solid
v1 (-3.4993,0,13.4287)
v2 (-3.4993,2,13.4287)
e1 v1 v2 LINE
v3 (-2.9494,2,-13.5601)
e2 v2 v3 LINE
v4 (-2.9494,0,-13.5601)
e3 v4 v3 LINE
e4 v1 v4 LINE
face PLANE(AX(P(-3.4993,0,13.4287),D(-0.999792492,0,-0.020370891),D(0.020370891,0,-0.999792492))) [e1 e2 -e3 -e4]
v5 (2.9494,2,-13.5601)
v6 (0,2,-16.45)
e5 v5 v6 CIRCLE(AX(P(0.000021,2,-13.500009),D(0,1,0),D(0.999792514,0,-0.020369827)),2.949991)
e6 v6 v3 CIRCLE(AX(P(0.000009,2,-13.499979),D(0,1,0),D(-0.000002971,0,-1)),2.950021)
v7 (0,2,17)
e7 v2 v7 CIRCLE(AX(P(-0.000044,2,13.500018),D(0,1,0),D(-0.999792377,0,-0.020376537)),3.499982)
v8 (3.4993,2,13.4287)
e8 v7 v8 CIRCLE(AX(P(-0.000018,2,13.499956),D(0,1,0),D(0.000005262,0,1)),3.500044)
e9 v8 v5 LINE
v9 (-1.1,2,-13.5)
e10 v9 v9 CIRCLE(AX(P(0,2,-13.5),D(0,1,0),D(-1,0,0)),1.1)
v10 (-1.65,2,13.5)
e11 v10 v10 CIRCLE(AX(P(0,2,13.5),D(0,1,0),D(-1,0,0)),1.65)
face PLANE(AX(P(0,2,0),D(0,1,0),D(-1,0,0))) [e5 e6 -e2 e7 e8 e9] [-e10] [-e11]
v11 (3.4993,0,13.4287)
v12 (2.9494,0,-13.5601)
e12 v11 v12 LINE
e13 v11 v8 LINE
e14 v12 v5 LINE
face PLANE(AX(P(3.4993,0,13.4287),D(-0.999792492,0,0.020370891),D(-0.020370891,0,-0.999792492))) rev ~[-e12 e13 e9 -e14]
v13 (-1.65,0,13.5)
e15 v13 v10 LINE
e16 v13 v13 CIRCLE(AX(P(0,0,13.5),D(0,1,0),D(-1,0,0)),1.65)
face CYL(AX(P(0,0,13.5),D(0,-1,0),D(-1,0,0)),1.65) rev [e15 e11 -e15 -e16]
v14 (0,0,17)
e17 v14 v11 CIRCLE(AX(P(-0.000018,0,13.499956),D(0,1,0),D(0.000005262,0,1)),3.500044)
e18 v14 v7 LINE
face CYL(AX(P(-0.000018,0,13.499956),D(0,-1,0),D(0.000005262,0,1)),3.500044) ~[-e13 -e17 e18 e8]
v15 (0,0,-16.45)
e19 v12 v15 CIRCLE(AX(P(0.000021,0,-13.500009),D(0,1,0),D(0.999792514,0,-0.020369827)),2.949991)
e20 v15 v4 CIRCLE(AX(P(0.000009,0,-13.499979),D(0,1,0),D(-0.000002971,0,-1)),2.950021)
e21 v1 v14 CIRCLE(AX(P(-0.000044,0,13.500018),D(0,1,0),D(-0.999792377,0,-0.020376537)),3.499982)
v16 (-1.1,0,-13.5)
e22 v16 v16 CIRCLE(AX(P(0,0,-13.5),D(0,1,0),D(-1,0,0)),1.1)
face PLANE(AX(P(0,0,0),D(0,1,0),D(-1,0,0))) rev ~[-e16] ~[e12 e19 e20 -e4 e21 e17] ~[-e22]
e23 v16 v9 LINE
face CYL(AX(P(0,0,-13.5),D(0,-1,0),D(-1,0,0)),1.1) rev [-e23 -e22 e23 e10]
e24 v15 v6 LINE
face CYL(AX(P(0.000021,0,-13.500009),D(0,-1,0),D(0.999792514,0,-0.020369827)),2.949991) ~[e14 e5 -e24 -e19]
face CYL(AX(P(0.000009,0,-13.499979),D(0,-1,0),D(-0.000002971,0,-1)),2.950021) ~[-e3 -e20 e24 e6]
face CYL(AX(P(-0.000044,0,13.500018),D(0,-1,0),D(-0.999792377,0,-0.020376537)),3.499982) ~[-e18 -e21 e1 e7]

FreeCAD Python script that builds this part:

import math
import FreeCAD as App
import Part
import Sketcher
from FreeCAD import Vector

doc = App.newDocument("Part")
body = doc.addObject("PartDesign::Body", "Body")

# Sketch on XZ plane
sketch1 = body.newObject("Sketcher::SketchObject", "Sketch")
sketch1.AttachmentSupport = (doc.getObject("XZ_Plane"), [""])
sketch1.MapMode = "FlatFace"
sketch1.addGeometry([
    Part.LineSegment(Vector(-2.9494, -13.5601, 0), Vector(-3.4993, 13.4287, 0)),  # 0
    Part.ArcOfCircle(Part.Circle(Vector(0, 13.5, 0), Vector(0, 0, 1), 3.5), math.radians(90), math.radians(181.167269)),  # 1
    Part.ArcOfCircle(Part.Circle(Vector(0, 13.5, 0), Vector(0, 0, 1), 3.500026), math.radians(-1.167269), math.radians(90)),  # 2
    Part.LineSegment(Vector(3.4993, 13.4287, 0), Vector(2.9494, -13.5601, 0)),  # 3
    Part.ArcOfCircle(Part.Circle(Vector(0, -13.5, 0), Vector(0, 0, 1), 2.95), math.radians(-90), math.radians(-1.167356)),  # 4
    Part.ArcOfCircle(Part.Circle(Vector(0, -13.5, 0), Vector(0, 0, 1), 2.950012), math.radians(-178.832644), math.radians(-90)),  # 5
    Part.Circle(Vector(0, -13.5, 0), Vector(0, 0, 1), 1.1),  # 6
    Part.Circle(Vector(0, 13.5, 0), Vector(0, 0, 1), 1.65),  # 7
], False)
sketch1.addConstraint([
    Sketcher.Constraint("Tangent", 0, 2, 1, 2),
    Sketcher.Constraint("Tangent", 1, 1, 2, 2),
    Sketcher.Constraint("Tangent", 2, 1, 3, 1),
    Sketcher.Constraint("Tangent", 3, 2, 4, 2),
    Sketcher.Constraint("Tangent", 4, 1, 5, 2),
    Sketcher.Constraint("Tangent", 5, 1, 0, 1),
    Sketcher.Constraint("Coincident", 6, 3, 4, 3),
    Sketcher.Constraint("Coincident", 7, 3, 1, 3),
    Sketcher.Constraint("Equal", 1, 2),
    Sketcher.Constraint("Equal", 4, 5),
    Sketcher.Constraint("Symmetric", 1, 3, 4, 3, -1, 1),
    Sketcher.Constraint("PointOnObject", 1, 3, -2),
    Sketcher.Constraint("PointOnObject", 1, 1, -2),
    Sketcher.Constraint("PointOnObject", 4, 1, -2),
    Sketcher.Constraint("Diameter", 6, 2.2),
    Sketcher.Constraint("Diameter", 7, 3.3),
    Sketcher.Constraint("Radius", 1, 3.5),
    Sketcher.Constraint("Radius", 4, 2.95),
    Sketcher.Constraint("DistanceY", -1, 1, 1, 1, 17.0),
])
pad1 = body.newObject("PartDesign::Pad", "Pad")
pad1.Profile = sketch1
pad1.Length = 2
pad1.Reversed = True

doc.recompute()
